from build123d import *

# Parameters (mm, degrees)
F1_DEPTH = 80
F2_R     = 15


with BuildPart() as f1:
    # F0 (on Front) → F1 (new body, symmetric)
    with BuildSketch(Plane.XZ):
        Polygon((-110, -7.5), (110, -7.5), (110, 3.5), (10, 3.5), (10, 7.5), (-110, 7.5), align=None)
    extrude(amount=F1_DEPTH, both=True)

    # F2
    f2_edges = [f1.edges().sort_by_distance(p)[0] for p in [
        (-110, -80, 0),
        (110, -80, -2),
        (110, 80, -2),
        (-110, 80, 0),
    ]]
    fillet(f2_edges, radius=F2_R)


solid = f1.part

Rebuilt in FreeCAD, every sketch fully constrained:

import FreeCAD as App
import Part
import Sketcher
Q = App.Units.Quantity


def edges_at(feature, points):
    """Names of the edges that pass closest to the given points."""
    edges = feature.Shape.Edges
    near = lambda p: min(range(len(edges)), key=lambda i: edges[i].distToShape(Part.Vertex(*p))[0])
    return sorted({f"Edge{near(p) + 1}" for p in points})


def add_polygon(sketch, points):
    """Adds a closed chain of lines whose ends are joined by coincident constraints."""
    first, n = sketch.GeometryCount, len(points)
    for a, b in zip(points, points[1:] + points[:1]):
        sketch.addGeometry(Part.LineSegment(App.Vector(*a, 0), App.Vector(*b, 0)), False)
    for i in range(n):
        sketch.addConstraint(Sketcher.Constraint("Coincident", first + i, 2, first + (i + 1) % n, 1))

doc = App.newDocument("Part")
body = doc.addObject("PartDesign::Body", "Body")

sketch1 = body.newObject("Sketcher::SketchObject", "Sketch")
sketch1.AttachmentSupport = (doc.getObject("XZ_Plane"), [""])
sketch1.MapMode = "FlatFace"
add_polygon(sketch1, [(-110, -7.5), (110, -7.5), (110, 3.5), (10, 3.5), (10, 7.5), (-110, 7.5)])
sketch1.addConstraint(Sketcher.Constraint("Horizontal", 0))
sketch1.addConstraint(Sketcher.Constraint("Vertical", 1))
sketch1.addConstraint(Sketcher.Constraint("Horizontal", 2))
sketch1.addConstraint(Sketcher.Constraint("Vertical", 3))
sketch1.addConstraint(Sketcher.Constraint("Horizontal", 4))
sketch1.addConstraint(Sketcher.Constraint("Vertical", 5))
sketch1.addConstraint(Sketcher.Constraint("Symmetric", 0, 2, 4, 2, -1, 1))
sketch1.addConstraint(Sketcher.Constraint("DistanceX", 0, 1, 0, 2, Q("220 mm")))
sketch1.addConstraint(Sketcher.Constraint("DistanceX", 2, 2, 2, 1, Q("100 mm")))
sketch1.addConstraint(Sketcher.Constraint("DistanceY", 1, 1, 1, 2, Q("11 mm")))
sketch1.addConstraint(Sketcher.Constraint("DistanceY", 3, 1, 3, 2, Q("4 mm")))
pad1 = body.newObject("PartDesign::Pad", "Pad")
pad1.Profile = sketch1
pad1.Length = 160
pad1.Midplane = True
doc.recompute()

fillet = body.newObject("PartDesign::Fillet", "Fillet")
fillet.Base = (pad1, edges_at(pad1, [
    (-110, -80, 0),
    (110, -80, -2),
    (110, 80, -2),
    (-110, 80, 0),
]))
fillet.Radius = 15

doc.recompute()
